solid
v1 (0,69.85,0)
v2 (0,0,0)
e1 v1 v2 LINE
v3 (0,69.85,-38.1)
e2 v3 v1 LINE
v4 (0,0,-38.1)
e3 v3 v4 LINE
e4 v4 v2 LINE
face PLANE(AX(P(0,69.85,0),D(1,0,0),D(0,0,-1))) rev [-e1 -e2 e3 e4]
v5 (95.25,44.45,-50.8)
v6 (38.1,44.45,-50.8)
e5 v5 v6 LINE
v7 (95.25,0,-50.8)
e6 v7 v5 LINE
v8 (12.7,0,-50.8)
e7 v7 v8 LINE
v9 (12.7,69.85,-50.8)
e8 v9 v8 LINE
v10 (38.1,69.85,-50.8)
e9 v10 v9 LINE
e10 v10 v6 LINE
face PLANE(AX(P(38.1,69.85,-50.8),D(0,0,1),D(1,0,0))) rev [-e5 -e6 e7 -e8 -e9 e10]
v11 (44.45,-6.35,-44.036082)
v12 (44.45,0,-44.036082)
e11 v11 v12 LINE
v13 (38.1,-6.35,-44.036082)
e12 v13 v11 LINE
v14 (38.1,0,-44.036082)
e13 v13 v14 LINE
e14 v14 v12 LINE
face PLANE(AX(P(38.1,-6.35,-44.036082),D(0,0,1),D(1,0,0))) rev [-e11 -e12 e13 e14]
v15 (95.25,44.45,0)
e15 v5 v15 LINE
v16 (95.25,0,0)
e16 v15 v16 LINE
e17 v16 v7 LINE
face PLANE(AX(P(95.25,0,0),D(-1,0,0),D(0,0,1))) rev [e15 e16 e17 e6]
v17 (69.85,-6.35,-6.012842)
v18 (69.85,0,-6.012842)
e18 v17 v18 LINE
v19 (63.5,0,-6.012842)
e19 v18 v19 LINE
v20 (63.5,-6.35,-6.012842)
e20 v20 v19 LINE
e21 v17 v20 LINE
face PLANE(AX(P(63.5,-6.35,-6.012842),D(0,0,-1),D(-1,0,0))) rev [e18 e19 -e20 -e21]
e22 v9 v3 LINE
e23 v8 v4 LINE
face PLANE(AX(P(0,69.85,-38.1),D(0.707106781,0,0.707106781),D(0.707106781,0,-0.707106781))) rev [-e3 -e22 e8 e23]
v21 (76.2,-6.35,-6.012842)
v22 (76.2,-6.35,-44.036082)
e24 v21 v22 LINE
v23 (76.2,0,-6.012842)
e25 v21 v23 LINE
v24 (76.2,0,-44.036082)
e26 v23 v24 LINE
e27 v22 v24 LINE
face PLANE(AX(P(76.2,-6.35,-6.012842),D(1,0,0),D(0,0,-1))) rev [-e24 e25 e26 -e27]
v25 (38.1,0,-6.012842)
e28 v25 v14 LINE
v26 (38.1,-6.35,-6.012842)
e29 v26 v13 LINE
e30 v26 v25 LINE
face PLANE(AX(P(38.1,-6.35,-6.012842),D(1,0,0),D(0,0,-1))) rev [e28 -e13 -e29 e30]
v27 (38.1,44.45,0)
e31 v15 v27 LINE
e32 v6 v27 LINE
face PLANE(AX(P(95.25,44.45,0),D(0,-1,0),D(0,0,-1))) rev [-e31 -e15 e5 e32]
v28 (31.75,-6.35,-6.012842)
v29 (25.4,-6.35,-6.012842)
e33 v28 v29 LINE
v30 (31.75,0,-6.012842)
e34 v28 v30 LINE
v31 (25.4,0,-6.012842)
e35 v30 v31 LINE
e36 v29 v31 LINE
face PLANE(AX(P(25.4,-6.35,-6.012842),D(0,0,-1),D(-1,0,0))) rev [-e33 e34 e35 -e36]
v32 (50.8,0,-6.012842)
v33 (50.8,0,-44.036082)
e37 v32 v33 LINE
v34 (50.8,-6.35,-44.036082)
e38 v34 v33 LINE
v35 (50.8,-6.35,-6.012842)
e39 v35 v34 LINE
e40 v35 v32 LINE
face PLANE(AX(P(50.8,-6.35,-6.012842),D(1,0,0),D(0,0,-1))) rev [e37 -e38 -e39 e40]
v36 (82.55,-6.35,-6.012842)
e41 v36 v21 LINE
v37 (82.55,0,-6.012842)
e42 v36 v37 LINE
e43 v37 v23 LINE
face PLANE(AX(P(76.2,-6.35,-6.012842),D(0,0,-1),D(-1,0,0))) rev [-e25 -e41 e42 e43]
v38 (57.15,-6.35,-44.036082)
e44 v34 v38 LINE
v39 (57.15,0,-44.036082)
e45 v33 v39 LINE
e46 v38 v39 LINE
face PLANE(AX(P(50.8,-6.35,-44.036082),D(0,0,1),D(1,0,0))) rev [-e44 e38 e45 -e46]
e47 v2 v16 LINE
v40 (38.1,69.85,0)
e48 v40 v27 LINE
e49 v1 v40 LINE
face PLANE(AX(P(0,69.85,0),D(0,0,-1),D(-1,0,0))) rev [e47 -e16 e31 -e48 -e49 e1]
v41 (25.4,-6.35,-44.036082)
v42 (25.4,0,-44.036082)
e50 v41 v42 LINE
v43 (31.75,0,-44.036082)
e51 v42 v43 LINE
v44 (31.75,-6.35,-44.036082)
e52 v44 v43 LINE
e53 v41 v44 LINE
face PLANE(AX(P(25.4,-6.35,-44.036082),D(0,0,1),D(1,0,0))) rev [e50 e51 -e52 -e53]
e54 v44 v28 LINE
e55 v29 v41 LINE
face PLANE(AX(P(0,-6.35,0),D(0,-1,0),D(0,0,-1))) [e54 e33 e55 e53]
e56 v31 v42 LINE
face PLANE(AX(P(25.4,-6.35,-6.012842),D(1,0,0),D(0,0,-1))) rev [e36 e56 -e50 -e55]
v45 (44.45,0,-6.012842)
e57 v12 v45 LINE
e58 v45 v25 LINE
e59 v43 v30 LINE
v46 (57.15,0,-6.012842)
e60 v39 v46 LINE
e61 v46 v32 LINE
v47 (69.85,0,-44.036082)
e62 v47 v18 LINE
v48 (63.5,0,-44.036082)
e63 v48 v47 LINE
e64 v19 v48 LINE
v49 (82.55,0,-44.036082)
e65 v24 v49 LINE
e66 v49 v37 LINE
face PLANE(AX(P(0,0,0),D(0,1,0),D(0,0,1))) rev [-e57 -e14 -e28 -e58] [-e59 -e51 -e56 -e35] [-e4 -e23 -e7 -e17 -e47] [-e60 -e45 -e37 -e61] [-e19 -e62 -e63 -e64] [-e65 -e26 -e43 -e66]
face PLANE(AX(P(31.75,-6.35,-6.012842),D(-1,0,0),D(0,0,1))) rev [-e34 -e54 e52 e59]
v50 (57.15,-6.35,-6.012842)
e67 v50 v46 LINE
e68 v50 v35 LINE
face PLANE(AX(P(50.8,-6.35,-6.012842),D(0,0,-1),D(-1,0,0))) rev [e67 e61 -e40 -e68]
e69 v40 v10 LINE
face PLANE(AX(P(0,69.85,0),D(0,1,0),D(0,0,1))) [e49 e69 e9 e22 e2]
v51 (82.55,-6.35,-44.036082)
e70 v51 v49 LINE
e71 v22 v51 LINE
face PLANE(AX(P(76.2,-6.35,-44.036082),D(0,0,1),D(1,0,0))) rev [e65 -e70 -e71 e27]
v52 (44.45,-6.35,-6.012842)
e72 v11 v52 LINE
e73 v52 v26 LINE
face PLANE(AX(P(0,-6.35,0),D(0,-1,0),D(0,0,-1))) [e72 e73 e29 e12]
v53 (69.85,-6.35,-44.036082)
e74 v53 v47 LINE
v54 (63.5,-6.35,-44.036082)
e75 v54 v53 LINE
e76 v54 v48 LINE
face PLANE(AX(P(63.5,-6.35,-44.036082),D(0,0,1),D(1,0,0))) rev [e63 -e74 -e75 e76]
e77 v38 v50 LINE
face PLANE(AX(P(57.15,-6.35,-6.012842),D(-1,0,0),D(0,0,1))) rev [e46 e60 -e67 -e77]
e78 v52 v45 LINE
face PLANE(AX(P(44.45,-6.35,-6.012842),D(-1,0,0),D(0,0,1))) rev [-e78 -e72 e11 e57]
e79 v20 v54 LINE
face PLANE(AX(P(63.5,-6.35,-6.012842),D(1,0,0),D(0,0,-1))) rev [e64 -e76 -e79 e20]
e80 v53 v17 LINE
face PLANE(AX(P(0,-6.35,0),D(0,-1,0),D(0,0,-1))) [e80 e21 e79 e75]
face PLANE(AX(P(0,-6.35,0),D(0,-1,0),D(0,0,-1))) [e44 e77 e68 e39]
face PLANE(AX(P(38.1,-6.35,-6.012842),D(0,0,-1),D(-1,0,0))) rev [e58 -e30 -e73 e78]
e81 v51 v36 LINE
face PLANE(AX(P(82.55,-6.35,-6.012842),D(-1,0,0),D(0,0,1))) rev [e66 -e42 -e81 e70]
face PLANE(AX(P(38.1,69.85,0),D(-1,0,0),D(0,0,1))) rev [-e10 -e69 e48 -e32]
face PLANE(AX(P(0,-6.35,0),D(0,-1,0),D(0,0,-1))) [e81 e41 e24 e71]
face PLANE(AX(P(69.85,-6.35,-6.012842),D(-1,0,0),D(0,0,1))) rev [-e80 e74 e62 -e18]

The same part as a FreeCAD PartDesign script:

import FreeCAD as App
import Part
import Sketcher
from FreeCAD import Vector
Q = App.Units.Quantity


def add_polygon(sketch, points):
    """Adds a closed chain of lines whose ends are joined by coincident constraints."""
    first, n = sketch.GeometryCount, len(points)
    for a, b in zip(points, points[1:] + points[:1]):
        sketch.addGeometry(Part.LineSegment(App.Vector(*a, 0), App.Vector(*b, 0)), False)
    for i in range(n):
        sketch.addConstraint(Sketcher.Constraint("Coincident", first + i, 2, first + (i + 1) % n, 1))

doc = App.newDocument("Part")
body = doc.addObject("PartDesign::Body", "Body")

sketch1 = body.newObject("Sketcher::SketchObject", "Sketch")
sketch1.AttachmentSupport = (doc.getObject("XZ_Plane"), [""])
sketch1.MapMode = "FlatFace"
add_polygon(sketch1, [(0, 0), (38.1, 0), (38.1, -50.8), (12.7, -50.8), (0, -38.1)])
sketch1.addConstraint(Sketcher.Constraint("Horizontal", 0))
sketch1.addConstraint(Sketcher.Constraint("Vertical", 1))
sketch1.addConstraint(Sketcher.Constraint("Horizontal", 2))
sketch1.addConstraint(Sketcher.Constraint("Vertical", 4))
sketch1.addConstraint(Sketcher.Constraint("Coincident", 4, 2, -1, 1))
sketch1.addConstraint(Sketcher.Constraint("Equal", 0, 4))
sketch1.addConstraint(Sketcher.Constraint("DistanceX", 2, 2, 2, 1, Q("1 in")))
sketch1.addConstraint(Sketcher.Constraint("DistanceY", 1, 2, 1, 1, Q("2 in")))
sketch1.addConstraint(Sketcher.Constraint("DistanceX", 0, 1, 0, 2, Q("1.5 in")))
pad1 = body.newObject("PartDesign::Pad", "Pad")
pad1.Profile = sketch1
pad1.Length = Q("2.75 in")
pad1.Reversed = True

sketch2 = body.newObject("Sketcher::SketchObject", "Sketch001")
sketch2.AttachmentSupport = (doc.getObject("YZ_Plane"), [""])
sketch2.MapMode = "FlatFace"
sketch2.AttachmentOffset = App.Placement(Vector(0, 0, 1.5 * 25.4), App.Rotation())
add_polygon(sketch2, [(44.45, 0), (0, 0), (0, -50.8), (44.45, -50.8)])
sketch2.addConstraint(Sketcher.Constraint("Horizontal", 0))
sketch2.addConstraint(Sketcher.Constraint("Vertical", 1))
sketch2.addConstraint(Sketcher.Constraint("Horizontal", 2))
sketch2.addConstraint(Sketcher.Constraint("Vertical", 3))
sketch2.addConstraint(Sketcher.Constraint("Coincident", 0, 2, -1, 1))
sketch2.addConstraint(Sketcher.Constraint("DistanceY", 1, 2, 1, 1, Q("2 in")))
sketch2.addConstraint(Sketcher.Constraint("DistanceX", 0, 2, 0, 1, Q("1.75 in")))
pad2 = body.newObject("PartDesign::Pad", "Pad001")
pad2.Profile = sketch2
pad2.Length = Q("2.25 in")

sketch3 = body.newObject("Sketcher::SketchObject", "Sketch002")
sketch3.AttachmentSupport = (doc.getObject("XZ_Plane"), [""])
sketch3.MapMode = "FlatFace"
add_polygon(sketch3, [(31.75, -44.036082), (31.75, -6.012842), (25.4, -6.012842), (25.4, -44.036082)])
add_polygon(sketch3, [(44.45, -44.036082), (44.45, -6.012842), (38.1, -6.012842), (38.1, -44.036082)])
add_polygon(sketch3, [(57.15, -44.036082), (57.15, -6.012842), (50.8, -6.012842), (50.8, -44.036082)])
add_polygon(sketch3, [(69.85, -44.036082), (69.85, -6.012842), (63.5, -6.012842), (63.5, -44.036082)])
add_polygon(sketch3, [(82.55, -44.036082), (82.55, -6.012842), (76.2, -6.012842), (76.2, -44.036082)])
sketch3.addConstraint(Sketcher.Constraint("Vertical", 0))
sketch3.addConstraint(Sketcher.Constraint("Horizontal", 1))
sketch3.addConstraint(Sketcher.Constraint("Vertical", 2))
sketch3.addConstraint(Sketcher.Constraint("Horizontal", 3))
sketch3.addConstraint(Sketcher.Constraint("Vertical", 4))
sketch3.addConstraint(Sketcher.Constraint("Horizontal", 5))
sketch3.addConstraint(Sketcher.Constraint("Vertical", 6))
sketch3.addConstraint(Sketcher.Constraint("Horizontal", 7))
sketch3.addConstraint(Sketcher.Constraint("Vertical", 8))
sketch3.addConstraint(Sketcher.Constraint("Horizontal", 9))
sketch3.addConstraint(Sketcher.Constraint("Vertical", 10))
sketch3.addConstraint(Sketcher.Constraint("Horizontal", 11))
sketch3.addConstraint(Sketcher.Constraint("Vertical", 12))
sketch3.addConstraint(Sketcher.Constraint("Horizontal", 13))
sketch3.addConstraint(Sketcher.Constraint("Vertical", 14))
sketch3.addConstraint(Sketcher.Constraint("Horizontal", 15))
sketch3.addConstraint(Sketcher.Constraint("Vertical", 16))
sketch3.addConstraint(Sketcher.Constraint("Horizontal", 17))
sketch3.addConstraint(Sketcher.Constraint("Vertical", 18))
sketch3.addConstraint(Sketcher.Constraint("Horizontal", 19))
sketch3.addConstraint(Sketcher.Constraint("Horizontal", 1, 2, 4, 2))
sketch3.addConstraint(Sketcher.Constraint("Horizontal", 3, 2, 6, 2))
sketch3.addConstraint(Sketcher.Constraint("Horizontal", 5, 2, 8, 2))
sketch3.addConstraint(Sketcher.Constraint("Horizontal", 7, 2, 10, 2))
sketch3.addConstraint(Sketcher.Constraint("Horizontal", 9, 2, 12, 2))
sketch3.addConstraint(Sketcher.Constraint("Horizontal", 11, 2, 14, 2))
sketch3.addConstraint(Sketcher.Constraint("Horizontal", 13, 2, 16, 2))
sketch3.addConstraint(Sketcher.Constraint("Horizontal", 15, 2, 18, 2))
sketch3.addConstraint(Sketcher.Constraint("Equal", 3, 5))
sketch3.addConstraint(Sketcher.Constraint("Equal", 7, 9))
sketch3.addConstraint(Sketcher.Constraint("Equal", 11, 13))
sketch3.addConstraint(Sketcher.Constraint("Equal", 15, 17))
sketch3.addConstraint(Sketcher.Constraint("DistanceX", -1, 1, 1, 2, Q("1 in")))
sketch3.addConstraint(Sketcher.Constraint("DistanceX", -1, 1, 9, 2, Q("2 in")))
sketch3.addConstraint(Sketcher.Constraint("DistanceX", -1, 1, 17, 2, Q("3 in")))
sketch3.addConstraint(Sketcher.Constraint("DistanceX", 4, 2, 12, 2, Q("1 in")))
sketch3.addConstraint(Sketcher.Constraint("DistanceX", 1, 2, 1, 1, Q("0.25 in")))
sketch3.addConstraint(Sketcher.Constraint("DistanceX", -1, 1, 5, 2, Q("1.5 in")))
sketch3.addConstraint(Sketcher.Constraint("DistanceY", 0, 1, 0, 2, 38.023239))
sketch3.addConstraint(Sketcher.Constraint("DistanceY", 2, 2, -1, 1, 44.036082))
pad3 = body.newObject("PartDesign::Pad", "Pad002")
pad3.Profile = sketch3
pad3.Length = Q("0.25 in")

doc.recompute()
